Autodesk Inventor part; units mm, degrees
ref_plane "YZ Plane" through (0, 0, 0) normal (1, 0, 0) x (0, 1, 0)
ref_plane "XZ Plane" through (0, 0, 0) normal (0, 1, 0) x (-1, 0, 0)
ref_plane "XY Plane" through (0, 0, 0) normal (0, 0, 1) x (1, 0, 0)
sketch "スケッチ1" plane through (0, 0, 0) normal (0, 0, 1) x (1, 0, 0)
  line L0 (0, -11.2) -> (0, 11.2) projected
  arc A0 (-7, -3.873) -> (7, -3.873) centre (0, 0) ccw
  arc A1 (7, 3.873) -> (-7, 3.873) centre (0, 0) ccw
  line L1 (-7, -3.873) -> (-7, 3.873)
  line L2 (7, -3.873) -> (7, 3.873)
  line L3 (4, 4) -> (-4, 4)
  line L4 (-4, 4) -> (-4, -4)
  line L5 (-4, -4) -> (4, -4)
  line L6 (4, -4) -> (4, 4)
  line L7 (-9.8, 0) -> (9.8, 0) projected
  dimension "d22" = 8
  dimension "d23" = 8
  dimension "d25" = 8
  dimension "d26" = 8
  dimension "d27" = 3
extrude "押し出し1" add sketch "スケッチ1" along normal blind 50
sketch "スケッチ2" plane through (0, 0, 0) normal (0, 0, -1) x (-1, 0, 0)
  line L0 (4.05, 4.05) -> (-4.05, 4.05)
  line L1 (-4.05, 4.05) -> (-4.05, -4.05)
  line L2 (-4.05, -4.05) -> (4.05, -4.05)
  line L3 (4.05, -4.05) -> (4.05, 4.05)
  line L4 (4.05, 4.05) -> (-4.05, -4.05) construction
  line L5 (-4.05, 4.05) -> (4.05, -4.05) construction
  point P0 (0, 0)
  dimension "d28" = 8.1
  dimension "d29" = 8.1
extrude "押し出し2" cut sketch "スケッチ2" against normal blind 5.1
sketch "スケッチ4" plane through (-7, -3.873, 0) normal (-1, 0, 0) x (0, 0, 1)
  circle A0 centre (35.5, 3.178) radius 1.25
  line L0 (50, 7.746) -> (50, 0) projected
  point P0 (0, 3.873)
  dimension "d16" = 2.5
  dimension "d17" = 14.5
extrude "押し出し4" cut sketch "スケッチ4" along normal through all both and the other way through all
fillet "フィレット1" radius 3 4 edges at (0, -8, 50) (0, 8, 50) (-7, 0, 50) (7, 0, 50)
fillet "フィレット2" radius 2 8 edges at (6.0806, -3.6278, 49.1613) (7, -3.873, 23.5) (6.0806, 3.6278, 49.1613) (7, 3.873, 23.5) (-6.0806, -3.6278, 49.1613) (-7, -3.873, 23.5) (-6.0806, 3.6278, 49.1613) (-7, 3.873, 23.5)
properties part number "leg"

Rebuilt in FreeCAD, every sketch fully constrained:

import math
import FreeCAD as App
import Part
import Sketcher


def edges_at(feature, points):
    """Names of the edges that pass closest to the given points."""
    edges = feature.Shape.Edges
    near = lambda p: min(range(len(edges)), key=lambda i: edges[i].distToShape(Part.Vertex(*p))[0])
    return sorted({f"Edge{near(p) + 1}" for p in points})

doc = App.newDocument("Part")
body = doc.addObject("PartDesign::Body", "Body")

# Sketch on XY plane
sketch1 = body.newObject("Sketcher::SketchObject", "Sketch")
sketch1.AttachmentSupport = (doc.getObject("XY_Plane"), [""])
sketch1.MapMode = "FlatFace"
sketch1.addGeometry(Part.ArcOfCircle(Part.Circle(App.Vector(0, 0, 0), App.Vector(0, 0, 1), 8), math.radians(-151), math.radians(-29)), False)
sketch1.addGeometry(Part.LineSegment(App.Vector(7, -4, 0), App.Vector(7, 4, 0)), False)
sketch1.addGeometry(Part.ArcOfCircle(Part.Circle(App.Vector(0, 0, 0), App.Vector(0, 0, 1), 8), math.radians(29), math.radians(151)), False)
sketch1.addGeometry(Part.LineSegment(App.Vector(-7, 4, 0), App.Vector(-7, -4, 0)), False)
sketch1.addConstraint(Sketcher.Constraint("Coincident", 0, 2, 1, 1))
sketch1.addConstraint(Sketcher.Constraint("Coincident", 1, 2, 2, 1))
sketch1.addConstraint(Sketcher.Constraint("Coincident", 2, 2, 3, 1))
sketch1.addConstraint(Sketcher.Constraint("Coincident", 3, 2, 0, 1))
sketch1.addConstraint(Sketcher.Constraint("Vertical", 1))
sketch1.addConstraint(Sketcher.Constraint("Vertical", 3))
sketch1.addConstraint(Sketcher.Constraint("Coincident", 0, 3, -1, 1))
sketch1.addConstraint(Sketcher.Constraint("Coincident", 2, 3, -1, 1))
sketch1.addConstraint(Sketcher.Constraint("Equal", 0, 2))
sketch1.addConstraint(Sketcher.Constraint("Horizontal", 1, 2, 2, 2))
sketch1.addConstraint(Sketcher.Constraint("Radius", 0, 8.0))
sketch1.addConstraint(Sketcher.Constraint("DistanceX", -1, 1, 0, 2, 7.0))
pad1 = body.newObject("PartDesign::Pad", "Pad")
pad1.Profile = sketch1
pad1.Length = 50

# Sketch on XY plane
sketch2 = body.newObject("Sketcher::SketchObject", "Sketch001")
sketch2.AttachmentSupport = (doc.getObject("XY_Plane"), [""])
sketch2.MapMode = "FlatFace"
sketch2.addGeometry(Part.LineSegment(App.Vector(-4, -4, 0), App.Vector(-4, 4, 0)), False)
sketch2.addGeometry(Part.LineSegment(App.Vector(-4, 4, 0), App.Vector(4, 4, 0)), False)
sketch2.addGeometry(Part.LineSegment(App.Vector(4, 4, 0), App.Vector(4, -4, 0)), False)
sketch2.addGeometry(Part.LineSegment(App.Vector(4, -4, 0), App.Vector(-4, -4, 0)), False)
sketch2.addConstraint(Sketcher.Constraint("Coincident", 0, 2, 1, 1))
sketch2.addConstraint(Sketcher.Constraint("Coincident", 1, 2, 2, 1))
sketch2.addConstraint(Sketcher.Constraint("Coincident", 2, 2, 3, 1))
sketch2.addConstraint(Sketcher.Constraint("Coincident", 3, 2, 0, 1))
sketch2.addConstraint(Sketcher.Constraint("Vertical", 0))
sketch2.addConstraint(Sketcher.Constraint("Horizontal", 1))
sketch2.addConstraint(Sketcher.Constraint("Vertical", 2))
sketch2.addConstraint(Sketcher.Constraint("Horizontal", 3))
sketch2.addConstraint(Sketcher.Constraint("Symmetric", 0, 2, 2, 2, -1, 1))
sketch2.addConstraint(Sketcher.Constraint("Equal", 3, 0))
sketch2.addConstraint(Sketcher.Constraint("DistanceX", 1, 1, 1, 2, 8.1))
pocket1 = body.newObject("PartDesign::Pocket", "Pocket")
pocket1.Profile = sketch2
pocket1.Length = 5.1
pocket1.Reversed = True

# Sketch on YZ plane
sketch3 = body.newObject("Sketcher::SketchObject", "Sketch002")
sketch3.AttachmentSupport = (doc.getObject("YZ_Plane"), [""])
sketch3.MapMode = "FlatFace"
sketch3.AttachmentOffset = App.Placement(App.Vector(0, 0, -7), App.Rotation())
sketch3.addGeometry(Part.Circle(App.Vector(-0.7, 35.5, 0), App.Vector(0, 0, 1), 1.2), False)
sketch3.addConstraint(Sketcher.Constraint("Diameter", 0, 2.5))
sketch3.addConstraint(Sketcher.Constraint("DistanceY", -1, 1, 0, 3, 35.5))
sketch3.addConstraint(Sketcher.Constraint("DistanceX", 0, 3, -1, 1, 0.695))
pocket2 = body.newObject("PartDesign::Pocket", "Pocket001")
pocket2.Profile = sketch3
pocket2.Type = "ThroughAll"
pocket2.Midplane = True
doc.recompute()

fillet = body.newObject("PartDesign::Fillet", "Fillet")
fillet.Base = (pocket2, edges_at(pocket2, [
    (0, -8, 50),
    (0, 8, 50),
    (-7, 0, 50),
    (7, 0, 50),
]))
fillet.Radius = 3
doc.recompute()

fillet2 = body.newObject("PartDesign::Fillet", "Fillet001")
fillet2.Base = (fillet, edges_at(fillet, [
    (6.081, -3.628, 49.161),
    (7, -3.873, 23.5),
    (6.081, 3.628, 49.161),
    (7, 3.873, 23.5),
    (-6.081, -3.628, 49.161),
    (-7, -3.873, 23.5),
    (-6.081, 3.628, 49.161),
    (-7, 3.873, 23.5),
]))
fillet2.Radius = 2

doc.recompute()
